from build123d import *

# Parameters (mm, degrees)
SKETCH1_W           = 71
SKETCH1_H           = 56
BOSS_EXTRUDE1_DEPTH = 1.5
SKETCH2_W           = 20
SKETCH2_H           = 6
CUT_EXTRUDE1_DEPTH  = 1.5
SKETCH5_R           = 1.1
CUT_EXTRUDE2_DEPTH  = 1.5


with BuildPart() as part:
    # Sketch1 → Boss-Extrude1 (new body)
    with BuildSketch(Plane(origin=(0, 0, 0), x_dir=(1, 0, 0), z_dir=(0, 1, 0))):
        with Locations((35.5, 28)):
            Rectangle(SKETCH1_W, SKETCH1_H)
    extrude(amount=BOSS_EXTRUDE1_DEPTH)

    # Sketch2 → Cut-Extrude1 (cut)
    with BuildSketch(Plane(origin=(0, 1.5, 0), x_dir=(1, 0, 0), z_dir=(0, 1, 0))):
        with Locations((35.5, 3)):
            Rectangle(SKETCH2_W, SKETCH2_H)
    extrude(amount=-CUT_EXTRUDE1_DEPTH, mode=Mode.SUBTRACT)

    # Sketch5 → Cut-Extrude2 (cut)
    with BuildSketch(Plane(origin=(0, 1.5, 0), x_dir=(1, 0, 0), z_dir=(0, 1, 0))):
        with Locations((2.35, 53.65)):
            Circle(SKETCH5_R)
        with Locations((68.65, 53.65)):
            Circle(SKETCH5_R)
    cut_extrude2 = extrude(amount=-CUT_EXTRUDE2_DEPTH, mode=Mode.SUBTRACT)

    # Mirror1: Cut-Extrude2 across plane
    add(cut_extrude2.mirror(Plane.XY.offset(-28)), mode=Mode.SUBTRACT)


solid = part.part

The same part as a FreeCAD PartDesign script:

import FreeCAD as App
import Part
import Sketcher
from FreeCAD import Vector
Q = App.Units.Quantity

doc = App.newDocument("Part")
body = doc.addObject("PartDesign::Body", "Body")

# Sketch on XZ plane
sketch1 = body.newObject("Sketcher::SketchObject", "Sketch")
sketch1.AttachmentSupport = (doc.getObject("XZ_Plane"), [""])
sketch1.MapMode = "FlatFace"
sketch1.addGeometry([
    Part.LineSegment(Vector(0, -56, 0), Vector(0, 0, 0)),
    Part.LineSegment(Vector(0, 0, 0), Vector(71, 0, 0)),
    Part.LineSegment(Vector(71, 0, 0), Vector(71, -56, 0)),
    Part.LineSegment(Vector(71, -56, 0), Vector(0, -56, 0)),
], False)
sketch1.addConstraint([
    Sketcher.Constraint("Coincident", 0, 2, 1, 1),
    Sketcher.Constraint("Coincident", 1, 2, 2, 1),
    Sketcher.Constraint("Coincident", 2, 2, 3, 1),
    Sketcher.Constraint("Coincident", 3, 2, 0, 1),
    Sketcher.Constraint("Vertical", 0),
    Sketcher.Constraint("Horizontal", 1),
    Sketcher.Constraint("Vertical", 2),
    Sketcher.Constraint("Horizontal", 3),
    Sketcher.Constraint("Coincident", 0, 2, -1, 1),
    Sketcher.Constraint("DistanceX", 1, 1, 1, 2, Q("71 mm")),
    Sketcher.Constraint("DistanceY", 0, 1, 0, 2, Q("56 mm")),
])
pad1 = body.newObject("PartDesign::Pad", "Pad")
pad1.Profile = sketch1
pad1.Length = 1.5
pad1.Reversed = True

# Sketch on XZ plane
sketch2 = body.newObject("Sketcher::SketchObject", "Sketch001")
sketch2.AttachmentSupport = (doc.getObject("XZ_Plane"), [""])
sketch2.MapMode = "FlatFace"
sketch2.AttachmentOffset = App.Placement(Vector(0, 0, -1.5), App.Rotation())
sketch2.addGeometry([
    Part.LineSegment(Vector(25.5, -6, 0), Vector(25.5, 0, 0)),
    Part.LineSegment(Vector(25.5, 0, 0), Vector(45.5, 0, 0)),
    Part.LineSegment(Vector(45.5, 0, 0), Vector(45.5, -6, 0)),
    Part.LineSegment(Vector(45.5, -6, 0), Vector(25.5, -6, 0)),
], False)
sketch2.addConstraint([
    Sketcher.Constraint("Coincident", 0, 2, 1, 1),
    Sketcher.Constraint("Coincident", 1, 2, 2, 1),
    Sketcher.Constraint("Coincident", 2, 2, 3, 1),
    Sketcher.Constraint("Coincident", 3, 2, 0, 1),
    Sketcher.Constraint("Vertical", 0),
    Sketcher.Constraint("Horizontal", 1),
    Sketcher.Constraint("Vertical", 2),
    Sketcher.Constraint("Horizontal", 3),
    Sketcher.Constraint("PointOnObject", 0, 2, -1),
    Sketcher.Constraint("DistanceX", 1, 1, 1, 2, Q("20 mm")),
    Sketcher.Constraint("DistanceY", 0, 1, 0, 2, Q("6 mm")),
    Sketcher.Constraint("DistanceX", -1, 1, 0, 2, Q("25.5 mm")),
])
pocket1 = body.newObject("PartDesign::Pocket", "Pocket")
pocket1.Profile = sketch2
pocket1.Length = 1.5
pocket1.Reversed = True

# Sketch on XZ plane
sketch3 = body.newObject("Sketcher::SketchObject", "Sketch002")
sketch3.AttachmentSupport = (doc.getObject("XZ_Plane"), [""])
sketch3.MapMode = "FlatFace"
sketch3.AttachmentOffset = App.Placement(Vector(0, 0, -1.5), App.Rotation())
sketch3.addGeometry([
    Part.Circle(Vector(2.35, -53.65, 0), Vector(0, 0, 1), 1.1),
    Part.Circle(Vector(68.65, -53.65, 0), Vector(0, 0, 1), 1.1),
], False)
sketch3.addConstraint([
    Sketcher.Constraint("Equal", 0, 1),
    Sketcher.Constraint("Horizontal", 0, 3, 1, 3),
    Sketcher.Constraint("Diameter", 0, Q("2.2 mm")),
    Sketcher.Constraint("DistanceX", 0, 3, 1, 3, Q("66.3 mm")),
    Sketcher.Constraint("DistanceX", -1, 1, 0, 3, Q("2.35 mm")),
    Sketcher.Constraint("DistanceY", 0, 3, -1, 1, Q("53.65 mm")),
])
pocket2 = body.newObject("PartDesign::Pocket", "Pocket001")
pocket2.Profile = sketch3
pocket2.Length = 1.5
pocket2.Reversed = True
doc.recompute()

datumplane = body.newObject("PartDesign::Plane", "DatumPlane")
datumplane.AttachmentSupport = (doc.getObject("XY_Plane"), [""])
datumplane.MapMode = "FlatFace"
datumplane.AttachmentOffset = App.Placement(Vector(0, 0, -28), App.Rotation())
mirrored = body.newObject("PartDesign::Mirrored", "Mirrored")
mirrored.Originals = [pocket2]
mirrored.MirrorPlane = (datumplane, [""])
body.Tip = mirrored

doc.recompute()
